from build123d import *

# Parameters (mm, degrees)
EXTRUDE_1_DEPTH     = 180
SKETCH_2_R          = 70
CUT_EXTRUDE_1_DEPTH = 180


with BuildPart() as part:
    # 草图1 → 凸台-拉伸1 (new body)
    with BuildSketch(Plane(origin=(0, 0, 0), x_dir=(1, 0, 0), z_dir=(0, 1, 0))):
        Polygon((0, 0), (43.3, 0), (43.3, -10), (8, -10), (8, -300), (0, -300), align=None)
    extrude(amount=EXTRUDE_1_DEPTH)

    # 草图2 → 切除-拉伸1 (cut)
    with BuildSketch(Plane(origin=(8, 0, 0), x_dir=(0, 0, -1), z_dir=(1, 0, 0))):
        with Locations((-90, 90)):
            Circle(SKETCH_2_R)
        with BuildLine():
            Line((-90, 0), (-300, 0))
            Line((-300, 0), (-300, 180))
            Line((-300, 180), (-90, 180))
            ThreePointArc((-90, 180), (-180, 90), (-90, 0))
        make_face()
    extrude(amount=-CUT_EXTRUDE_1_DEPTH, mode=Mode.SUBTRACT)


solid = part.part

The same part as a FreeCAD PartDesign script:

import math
import FreeCAD as App
import Part
import Sketcher
from FreeCAD import Vector
Q = App.Units.Quantity


def add_polygon(sketch, points):
    """Adds a closed chain of lines whose ends are joined by coincident constraints."""
    first, n = sketch.GeometryCount, len(points)
    for a, b in zip(points, points[1:] + points[:1]):
        sketch.addGeometry(Part.LineSegment(App.Vector(*a, 0), App.Vector(*b, 0)), False)
    for i in range(n):
        sketch.addConstraint(Sketcher.Constraint("Coincident", first + i, 2, first + (i + 1) % n, 1))

doc = App.newDocument("Part")
body = doc.addObject("PartDesign::Body", "Body")

# Sketch on XZ plane
sketch1 = body.newObject("Sketcher::SketchObject", "Sketch")
sketch1.AttachmentSupport = (doc.getObject("XZ_Plane"), [""])
sketch1.MapMode = "FlatFace"
add_polygon(sketch1, [(43, 0), (0, 0), (0, 300), (8, 300), (8, 10), (43, 10)])  # lines 0-5
sketch1.addConstraint(Sketcher.Constraint("Horizontal", 0))
sketch1.addConstraint(Sketcher.Constraint("Vertical", 1))
sketch1.addConstraint(Sketcher.Constraint("Horizontal", 2))
sketch1.addConstraint(Sketcher.Constraint("Vertical", 3))
sketch1.addConstraint(Sketcher.Constraint("Horizontal", 4))
sketch1.addConstraint(Sketcher.Constraint("Vertical", 5))
sketch1.addConstraint(Sketcher.Constraint("Coincident", 0, 2, -1, 1))
sketch1.addConstraint(Sketcher.Constraint("DistanceX", 2, 1, 2, 2, Q("8 mm")))
sketch1.addConstraint(Sketcher.Constraint("DistanceY", 1, 1, 1, 2, Q("300 mm")))
sketch1.addConstraint(Sketcher.Constraint("DistanceY", 3, 2, 3, 1, Q("290 mm")))
sketch1.addConstraint(Sketcher.Constraint("DistanceX", 0, 2, 0, 1, Q("43.3 mm")))
pad1 = body.newObject("PartDesign::Pad", "Pad")
pad1.Profile = sketch1
pad1.Length = 180
pad1.Reversed = True

# Sketch on YZ plane
sketch2 = body.newObject("Sketcher::SketchObject", "Sketch001")
sketch2.AttachmentSupport = (doc.getObject("YZ_Plane"), [""])
sketch2.MapMode = "FlatFace"
sketch2.AttachmentOffset = App.Placement(Vector(0, 0, 8), App.Rotation())
sketch2.addGeometry(Part.Circle(Vector(90, 90, 0), Vector(0, 0, 1), 70), False)
sketch2.addGeometry(Part.LineSegment(Vector(0, 300, 0), Vector(0, 90, 0)), False)
sketch2.addGeometry(Part.ArcOfCircle(Part.Circle(Vector(90, 90, 0), Vector(0, 0, 1), 90), math.radians(0), math.radians(180)), False)
sketch2.addGeometry(Part.LineSegment(Vector(180, 90, 0), Vector(180, 300, 0)), False)
sketch2.addGeometry(Part.LineSegment(Vector(180, 300, 0), Vector(0, 300, 0)), False)
sketch2.addConstraint(Sketcher.Constraint("Tangent", 1, 2, 2, 2))
sketch2.addConstraint(Sketcher.Constraint("Tangent", 2, 1, 3, 1))
sketch2.addConstraint(Sketcher.Constraint("Coincident", 3, 2, 4, 1))
sketch2.addConstraint(Sketcher.Constraint("Coincident", 4, 2, 1, 1))
sketch2.addConstraint(Sketcher.Constraint("Vertical", 1))
sketch2.addConstraint(Sketcher.Constraint("Vertical", 3))
sketch2.addConstraint(Sketcher.Constraint("Horizontal", 4))
sketch2.addConstraint(Sketcher.Constraint("Coincident", 2, 3, 0, 3))
sketch2.addConstraint(Sketcher.Constraint("PointOnObject", 1, 2, -2))
sketch2.addConstraint(Sketcher.Constraint("Diameter", 0, Q("140 mm")))
sketch2.addConstraint(Sketcher.Constraint("Radius", 2, Q("90 mm")))
sketch2.addConstraint(Sketcher.Constraint("DistanceY", 1, 2, 1, 1, Q("210 mm")))
sketch2.addConstraint(Sketcher.Constraint("DistanceY", -1, 1, 0, 3, Q("90 mm")))
pocket1 = body.newObject("PartDesign::Pocket", "Pocket")
pocket1.Profile = sketch2
pocket1.Length = 180

doc.recompute()
